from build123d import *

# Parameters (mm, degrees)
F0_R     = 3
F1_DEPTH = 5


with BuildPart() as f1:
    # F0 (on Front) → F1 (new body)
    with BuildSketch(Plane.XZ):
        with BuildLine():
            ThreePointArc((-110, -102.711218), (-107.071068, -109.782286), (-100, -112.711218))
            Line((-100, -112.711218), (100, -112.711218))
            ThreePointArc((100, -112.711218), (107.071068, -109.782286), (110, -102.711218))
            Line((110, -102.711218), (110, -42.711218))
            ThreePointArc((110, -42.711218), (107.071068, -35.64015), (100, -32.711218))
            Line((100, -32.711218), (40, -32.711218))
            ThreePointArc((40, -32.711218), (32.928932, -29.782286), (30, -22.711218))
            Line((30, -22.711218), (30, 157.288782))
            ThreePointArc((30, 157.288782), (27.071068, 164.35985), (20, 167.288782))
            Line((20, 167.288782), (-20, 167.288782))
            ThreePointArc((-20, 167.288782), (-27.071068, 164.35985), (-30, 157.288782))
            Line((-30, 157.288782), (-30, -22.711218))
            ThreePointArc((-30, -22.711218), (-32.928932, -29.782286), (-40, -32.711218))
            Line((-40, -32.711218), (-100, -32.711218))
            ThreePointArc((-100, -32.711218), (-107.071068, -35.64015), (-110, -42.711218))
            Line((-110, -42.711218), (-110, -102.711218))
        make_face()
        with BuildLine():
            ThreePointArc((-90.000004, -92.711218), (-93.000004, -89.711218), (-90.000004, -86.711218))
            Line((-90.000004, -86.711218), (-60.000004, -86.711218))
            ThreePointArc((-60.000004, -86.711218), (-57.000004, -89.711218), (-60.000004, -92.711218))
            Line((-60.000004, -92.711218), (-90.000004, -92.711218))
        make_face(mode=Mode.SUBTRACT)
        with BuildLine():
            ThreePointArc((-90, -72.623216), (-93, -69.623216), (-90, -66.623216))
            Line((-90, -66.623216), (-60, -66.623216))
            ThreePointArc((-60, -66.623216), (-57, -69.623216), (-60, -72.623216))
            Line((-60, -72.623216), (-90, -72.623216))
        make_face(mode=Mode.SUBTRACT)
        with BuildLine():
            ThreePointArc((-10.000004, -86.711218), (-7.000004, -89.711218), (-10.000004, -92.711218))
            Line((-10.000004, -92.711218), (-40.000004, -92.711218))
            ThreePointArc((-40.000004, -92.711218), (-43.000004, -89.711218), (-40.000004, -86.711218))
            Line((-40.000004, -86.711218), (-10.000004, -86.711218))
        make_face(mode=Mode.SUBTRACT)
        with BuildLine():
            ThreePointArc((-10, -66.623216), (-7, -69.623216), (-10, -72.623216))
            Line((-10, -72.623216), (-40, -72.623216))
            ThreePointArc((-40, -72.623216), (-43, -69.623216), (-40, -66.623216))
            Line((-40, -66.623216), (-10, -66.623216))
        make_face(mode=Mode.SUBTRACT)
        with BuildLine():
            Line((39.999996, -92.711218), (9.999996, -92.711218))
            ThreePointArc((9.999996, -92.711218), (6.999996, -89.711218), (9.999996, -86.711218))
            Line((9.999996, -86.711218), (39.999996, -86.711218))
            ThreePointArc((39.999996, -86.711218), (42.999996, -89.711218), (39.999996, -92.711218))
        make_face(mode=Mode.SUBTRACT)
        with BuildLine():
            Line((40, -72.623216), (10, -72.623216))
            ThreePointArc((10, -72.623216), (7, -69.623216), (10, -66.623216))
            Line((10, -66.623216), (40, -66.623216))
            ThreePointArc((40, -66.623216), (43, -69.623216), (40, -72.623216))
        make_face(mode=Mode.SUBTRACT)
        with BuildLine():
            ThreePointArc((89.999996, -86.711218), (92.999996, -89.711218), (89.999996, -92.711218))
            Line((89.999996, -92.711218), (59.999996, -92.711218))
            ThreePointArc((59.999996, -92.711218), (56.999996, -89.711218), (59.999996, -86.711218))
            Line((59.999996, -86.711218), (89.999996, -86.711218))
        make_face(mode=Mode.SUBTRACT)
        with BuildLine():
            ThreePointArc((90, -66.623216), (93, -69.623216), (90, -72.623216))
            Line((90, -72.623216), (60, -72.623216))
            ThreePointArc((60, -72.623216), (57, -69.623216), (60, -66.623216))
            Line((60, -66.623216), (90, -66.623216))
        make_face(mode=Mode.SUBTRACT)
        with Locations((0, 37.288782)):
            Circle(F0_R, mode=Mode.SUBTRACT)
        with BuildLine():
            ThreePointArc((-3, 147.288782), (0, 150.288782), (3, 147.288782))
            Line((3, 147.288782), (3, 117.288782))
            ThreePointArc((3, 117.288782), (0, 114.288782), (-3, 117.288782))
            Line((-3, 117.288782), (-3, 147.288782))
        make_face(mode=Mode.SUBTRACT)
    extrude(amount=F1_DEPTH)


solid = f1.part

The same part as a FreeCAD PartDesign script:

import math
import FreeCAD as App
import Part
import Sketcher
from FreeCAD import Vector

doc = App.newDocument("Part")
body = doc.addObject("PartDesign::Body", "Body")

sketch1 = body.newObject("Sketcher::SketchObject", "Sketch")
sketch1.AttachmentSupport = (doc.getObject("XZ_Plane"), [""])
sketch1.MapMode = "FlatFace"
sketch1.addGeometry([
    Part.ArcOfCircle(Part.Circle(Vector(-100, -102.7, 0), Vector(0, 0, 1), 10), math.radians(180), math.radians(270)),
    Part.LineSegment(Vector(-100, -112.7, 0), Vector(100, -112.7, 0)),
    Part.ArcOfCircle(Part.Circle(Vector(100, -102.7, 0), Vector(0, 0, 1), 10), math.radians(-90), math.radians(0)),
    Part.LineSegment(Vector(110, -102.7, 0), Vector(110, -42.7, 0)),
    Part.ArcOfCircle(Part.Circle(Vector(100, -42.7, 0), Vector(0, 0, 1), 10), math.radians(0), math.radians(90)),
    Part.LineSegment(Vector(100, -32.7, 0), Vector(40, -32.7, 0)),
    Part.ArcOfCircle(Part.Circle(Vector(40, -22.7, 0), Vector(0, 0, 1), 10), math.radians(180), math.radians(270)),
    Part.LineSegment(Vector(30, -22.7, 0), Vector(30, 157.3, 0)),
    Part.ArcOfCircle(Part.Circle(Vector(20, 157.3, 0), Vector(0, 0, 1), 10), math.radians(0), math.radians(90)),
    Part.LineSegment(Vector(20, 167.3, 0), Vector(-20, 167.3, 0)),
    Part.ArcOfCircle(Part.Circle(Vector(-20, 157.3, 0), Vector(0, 0, 1), 10), math.radians(90), math.radians(180)),
    Part.LineSegment(Vector(-30, 157.3, 0), Vector(-30, -22.7, 0)),
    Part.ArcOfCircle(Part.Circle(Vector(-40, -22.7, 0), Vector(0, 0, 1), 10), math.radians(-90), math.radians(0)),
    Part.LineSegment(Vector(-40, -32.7, 0), Vector(-100, -32.7, 0)),
    Part.ArcOfCircle(Part.Circle(Vector(-100, -42.7, 0), Vector(0, 0, 1), 10), math.radians(90), math.radians(180)),
    Part.LineSegment(Vector(-110, -42.7, 0), Vector(-110, -102.7, 0)),
    Part.LineSegment(Vector(-60, -92.7, 0), Vector(-90, -92.7, 0)),
    Part.ArcOfCircle(Part.Circle(Vector(-90, -89.7, 0), Vector(0, 0, 1), 3), math.radians(90), math.radians(270)),
    Part.LineSegment(Vector(-90, -86.7, 0), Vector(-60, -86.7, 0)),
    Part.ArcOfCircle(Part.Circle(Vector(-60, -89.7, 0), Vector(0, 0, 1), 3), math.radians(-90), math.radians(90)),
    Part.LineSegment(Vector(-60, -72.6, 0), Vector(-90, -72.6, 0)),
    Part.ArcOfCircle(Part.Circle(Vector(-90, -69.6, 0), Vector(0, 0, 1), 3), math.radians(90), math.radians(270)),
    Part.LineSegment(Vector(-90, -66.6, 0), Vector(-60, -66.6, 0)),
    Part.ArcOfCircle(Part.Circle(Vector(-60, -69.6, 0), Vector(0, 0, 1), 3), math.radians(-90), math.radians(90)),
    Part.LineSegment(Vector(-40, -86.7, 0), Vector(-10, -86.7, 0)),
    Part.ArcOfCircle(Part.Circle(Vector(-10, -89.7, 0), Vector(0, 0, 1), 3), math.radians(-90), math.radians(90)),
    Part.LineSegment(Vector(-10, -92.7, 0), Vector(-40, -92.7, 0)),
    Part.ArcOfCircle(Part.Circle(Vector(-40, -89.7, 0), Vector(0, 0, 1), 3), math.radians(90), math.radians(270)),
    Part.LineSegment(Vector(-40, -66.6, 0), Vector(-10, -66.6, 0)),
    Part.ArcOfCircle(Part.Circle(Vector(-10, -69.6, 0), Vector(0, 0, 1), 3), math.radians(-90), math.radians(90)),
    Part.LineSegment(Vector(-10, -72.6, 0), Vector(-40, -72.6, 0)),
    Part.ArcOfCircle(Part.Circle(Vector(-40, -69.6, 0), Vector(0, 0, 1), 3), math.radians(90), math.radians(270)),
    Part.ArcOfCircle(Part.Circle(Vector(40, -89.7, 0), Vector(0, 0, 1), 3), math.radians(-90), math.radians(90)),
    Part.LineSegment(Vector(40, -92.7, 0), Vector(10, -92.7, 0)),
    Part.ArcOfCircle(Part.Circle(Vector(10, -89.7, 0), Vector(0, 0, 1), 3), math.radians(90), math.radians(270)),
    Part.LineSegment(Vector(10, -86.7, 0), Vector(40, -86.7, 0)),
    Part.ArcOfCircle(Part.Circle(Vector(40, -69.6, 0), Vector(0, 0, 1), 3), math.radians(-90), math.radians(90)),
    Part.LineSegment(Vector(40, -72.6, 0), Vector(10, -72.6, 0)),
    Part.ArcOfCircle(Part.Circle(Vector(10, -69.6, 0), Vector(0, 0, 1), 3), math.radians(90), math.radians(270)),
    Part.LineSegment(Vector(10, -66.6, 0), Vector(40, -66.6, 0)),
    Part.LineSegment(Vector(60, -86.7, 0), Vector(90, -86.7, 0)),
    Part.ArcOfCircle(Part.Circle(Vector(90, -89.7, 0), Vector(0, 0, 1), 3), math.radians(-90), math.radians(90)),
    Part.LineSegment(Vector(90, -92.7, 0), Vector(60, -92.7, 0)),
    Part.ArcOfCircle(Part.Circle(Vector(60, -89.7, 0), Vector(0, 0, 1), 3), math.radians(90), math.radians(270)),
    Part.LineSegment(Vector(60, -66.6, 0), Vector(90, -66.6, 0)),
    Part.ArcOfCircle(Part.Circle(Vector(90, -69.6, 0), Vector(0, 0, 1), 3), math.radians(-90), math.radians(90)),
    Part.LineSegment(Vector(90, -72.6, 0), Vector(60, -72.6, 0)),
    Part.ArcOfCircle(Part.Circle(Vector(60, -69.6, 0), Vector(0, 0, 1), 3), math.radians(90), math.radians(270)),
    Part.Circle(Vector(0, 37.3, 0), Vector(0, 0, 1), 3),
    Part.LineSegment(Vector(-3, 117.3, 0), Vector(-3, 147.3, 0)),
    Part.ArcOfCircle(Part.Circle(Vector(0, 147.3, 0), Vector(0, 0, 1), 3), math.radians(0), math.radians(180)),
    Part.LineSegment(Vector(3, 147.3, 0), Vector(3, 117.3, 0)),
    Part.ArcOfCircle(Part.Circle(Vector(0, 117.3, 0), Vector(0, 0, 1), 3), math.radians(180), math.radians(360)),
], False)
sketch1.addConstraint([
    Sketcher.Constraint("Tangent", 0, 2, 1, 1),
    Sketcher.Constraint("Tangent", 1, 2, 2, 1),
    Sketcher.Constraint("Tangent", 2, 2, 3, 1),
    Sketcher.Constraint("Tangent", 3, 2, 4, 1),
    Sketcher.Constraint("Tangent", 4, 2, 5, 1),
    Sketcher.Constraint("Tangent", 5, 2, 6, 2),
    Sketcher.Constraint("Tangent", 6, 1, 7, 1),
    Sketcher.Constraint("Tangent", 7, 2, 8, 1),
    Sketcher.Constraint("Tangent", 8, 2, 9, 1),
    Sketcher.Constraint("Tangent", 9, 2, 10, 1),
    Sketcher.Constraint("Tangent", 10, 2, 11, 1),
    Sketcher.Constraint("Tangent", 11, 2, 12, 2),
    Sketcher.Constraint("Tangent", 12, 1, 13, 1),
    Sketcher.Constraint("Tangent", 13, 2, 14, 1),
    Sketcher.Constraint("Tangent", 14, 2, 15, 1),
    Sketcher.Constraint("Tangent", 15, 2, 0, 1),
    Sketcher.Constraint("Tangent", 16, 2, 17, 2),
    Sketcher.Constraint("Tangent", 17, 1, 18, 1),
    Sketcher.Constraint("Tangent", 18, 2, 19, 2),
    Sketcher.Constraint("Tangent", 19, 1, 16, 1),
    Sketcher.Constraint("Tangent", 20, 2, 21, 2),
    Sketcher.Constraint("Tangent", 21, 1, 22, 1),
    Sketcher.Constraint("Tangent", 22, 2, 23, 2),
    Sketcher.Constraint("Tangent", 23, 1, 20, 1),
    Sketcher.Constraint("Tangent", 24, 2, 25, 2),
    Sketcher.Constraint("Tangent", 25, 1, 26, 1),
    Sketcher.Constraint("Tangent", 26, 2, 27, 2),
    Sketcher.Constraint("Tangent", 27, 1, 24, 1),
    Sketcher.Constraint("Tangent", 28, 2, 29, 2),
    Sketcher.Constraint("Tangent", 29, 1, 30, 1),
    Sketcher.Constraint("Tangent", 30, 2, 31, 2),
    Sketcher.Constraint("Tangent", 31, 1, 28, 1),
    Sketcher.Constraint("Tangent", 32, 1, 33, 1),
    Sketcher.Constraint("Tangent", 33, 2, 34, 2),
    Sketcher.Constraint("Tangent", 34, 1, 35, 1),
    Sketcher.Constraint("Tangent", 35, 2, 32, 2),
    Sketcher.Constraint("Tangent", 36, 1, 37, 1),
    Sketcher.Constraint("Tangent", 37, 2, 38, 2),
    Sketcher.Constraint("Tangent", 38, 1, 39, 1),
    Sketcher.Constraint("Tangent", 39, 2, 36, 2),
    Sketcher.Constraint("Tangent", 40, 2, 41, 2),
    Sketcher.Constraint("Tangent", 41, 1, 42, 1),
    Sketcher.Constraint("Tangent", 42, 2, 43, 2),
    Sketcher.Constraint("Tangent", 43, 1, 40, 1),
    Sketcher.Constraint("Tangent", 44, 2, 45, 2),
    Sketcher.Constraint("Tangent", 45, 1, 46, 1),
    Sketcher.Constraint("Tangent", 46, 2, 47, 2),
    Sketcher.Constraint("Tangent", 47, 1, 44, 1),
    Sketcher.Constraint("Tangent", 49, 2, 50, 2),
    Sketcher.Constraint("Tangent", 50, 1, 51, 1),
    Sketcher.Constraint("Tangent", 51, 2, 52, 2),
    Sketcher.Constraint("Tangent", 52, 1, 49, 1),
    Sketcher.Constraint("Horizontal", 1),
    Sketcher.Constraint("Vertical", 3),
    Sketcher.Constraint("Horizontal", 5),
    Sketcher.Constraint("Vertical", 7),
    Sketcher.Constraint("Horizontal", 9),
    Sketcher.Constraint("Vertical", 11),
    Sketcher.Constraint("Horizontal", 13),
    Sketcher.Constraint("Vertical", 15),
    Sketcher.Constraint("Horizontal", 16),
    Sketcher.Constraint("Horizontal", 18),
    Sketcher.Constraint("Horizontal", 20),
    Sketcher.Constraint("Horizontal", 22),
    Sketcher.Constraint("Horizontal", 24),
    Sketcher.Constraint("Horizontal", 26),
    Sketcher.Constraint("Horizontal", 28),
    Sketcher.Constraint("Horizontal", 30),
    Sketcher.Constraint("Horizontal", 33),
    Sketcher.Constraint("Horizontal", 35),
    Sketcher.Constraint("Horizontal", 37),
    Sketcher.Constraint("Horizontal", 39),
    Sketcher.Constraint("Horizontal", 40),
    Sketcher.Constraint("Horizontal", 42),
    Sketcher.Constraint("Horizontal", 44),
    Sketcher.Constraint("Horizontal", 46),
    Sketcher.Constraint("Vertical", 49),
    Sketcher.Constraint("Vertical", 51),
    Sketcher.Constraint("Equal", 0, 2),
    Sketcher.Constraint("Equal", 2, 4),
    Sketcher.Constraint("Equal", 4, 6),
    Sketcher.Constraint("Equal", 6, 8),
    Sketcher.Constraint("Equal", 8, 10),
    Sketcher.Constraint("Equal", 10, 12),
    Sketcher.Constraint("Equal", 12, 14),
    Sketcher.Constraint("Equal", 19, 21),
    Sketcher.Constraint("Equal", 23, 25),
    Sketcher.Constraint("Equal", 27, 29),
    Sketcher.Constraint("Equal", 31, 32),
    Sketcher.Constraint("Equal", 34, 36),
    Sketcher.Constraint("Equal", 38, 41),
    Sketcher.Constraint("Equal", 43, 45),
    Sketcher.Constraint("Equal", 47, 48),
    Sketcher.Constraint("Equal", 48, 50),
    Sketcher.Constraint("Symmetric", 6, 3, 12, 3, -2),
    Sketcher.Constraint("Symmetric", 27, 3, 32, 3, -2),
    Sketcher.Constraint("Symmetric", 31, 3, 36, 3, -2),
    Sketcher.Constraint("Symmetric", 17, 3, 41, 3, -2),
    Sketcher.Constraint("Symmetric", 21, 3, 45, 3, -2),
    Sketcher.Constraint("PointOnObject", 48, 3, -2),
    Sketcher.Constraint("PointOnObject", 50, 3, -2),
    Sketcher.Constraint("Horizontal", 19, 3, 25, 3),
    Sketcher.Constraint("Horizontal", 23, 3, 29, 3),
    Sketcher.Constraint("Vertical", 12, 3, 31, 3),
    Sketcher.Constraint("Equal", 5, 13),
    Sketcher.Constraint("Equal", 18, 20),
    Sketcher.Constraint("Equal", 22, 24),
    Sketcher.Constraint("Equal", 26, 28),
    Sketcher.Constraint("Equal", 30, 33),
    Sketcher.Constraint("Equal", 35, 37),
    Sketcher.Constraint("Equal", 39, 40),
    Sketcher.Constraint("Equal", 42, 44),
    Sketcher.Constraint("Equal", 13, 3),
    Sketcher.Constraint("Equal", 46, 49),
    Sketcher.Constraint("Diameter", 48, 6.0),
    Sketcher.Constraint("Radius", 0, 9.999999),
    Sketcher.Constraint("DistanceX", 1, 1, 1, 2, 200.0),
    Sketcher.Constraint("DistanceX", 5, 2, 5, 1, 60.0),
    Sketcher.Constraint("DistanceX", 16, 2, 16, 1, 30.0),
    Sketcher.Constraint("DistanceY", 7, 1, 7, 2, 180.0),
    Sketcher.Constraint("DistanceX", 21, 3, -1, 1, 90.0),
    Sketcher.Constraint("DistanceY", 0, 3, -1, 1, 102.711219),
    Sketcher.Constraint("DistanceY", 17, 3, -1, 1, 89.711218),
    Sketcher.Constraint("DistanceY", -1, 1, 48, 3, 37.288782),
    Sketcher.Constraint("DistanceY", -1, 1, 50, 3, 147.288782),
    Sketcher.Constraint("DistanceX", 17, 3, -1, 1, 90.000004),
    Sketcher.Constraint("DistanceY", 21, 3, -1, 1, 69.623216),
    Sketcher.Constraint("DistanceX", 25, 3, -1, 1, 10.000004),
])
pad1 = body.newObject("PartDesign::Pad", "Pad")
pad1.Profile = sketch1
pad1.Length = 5

doc.recompute()
